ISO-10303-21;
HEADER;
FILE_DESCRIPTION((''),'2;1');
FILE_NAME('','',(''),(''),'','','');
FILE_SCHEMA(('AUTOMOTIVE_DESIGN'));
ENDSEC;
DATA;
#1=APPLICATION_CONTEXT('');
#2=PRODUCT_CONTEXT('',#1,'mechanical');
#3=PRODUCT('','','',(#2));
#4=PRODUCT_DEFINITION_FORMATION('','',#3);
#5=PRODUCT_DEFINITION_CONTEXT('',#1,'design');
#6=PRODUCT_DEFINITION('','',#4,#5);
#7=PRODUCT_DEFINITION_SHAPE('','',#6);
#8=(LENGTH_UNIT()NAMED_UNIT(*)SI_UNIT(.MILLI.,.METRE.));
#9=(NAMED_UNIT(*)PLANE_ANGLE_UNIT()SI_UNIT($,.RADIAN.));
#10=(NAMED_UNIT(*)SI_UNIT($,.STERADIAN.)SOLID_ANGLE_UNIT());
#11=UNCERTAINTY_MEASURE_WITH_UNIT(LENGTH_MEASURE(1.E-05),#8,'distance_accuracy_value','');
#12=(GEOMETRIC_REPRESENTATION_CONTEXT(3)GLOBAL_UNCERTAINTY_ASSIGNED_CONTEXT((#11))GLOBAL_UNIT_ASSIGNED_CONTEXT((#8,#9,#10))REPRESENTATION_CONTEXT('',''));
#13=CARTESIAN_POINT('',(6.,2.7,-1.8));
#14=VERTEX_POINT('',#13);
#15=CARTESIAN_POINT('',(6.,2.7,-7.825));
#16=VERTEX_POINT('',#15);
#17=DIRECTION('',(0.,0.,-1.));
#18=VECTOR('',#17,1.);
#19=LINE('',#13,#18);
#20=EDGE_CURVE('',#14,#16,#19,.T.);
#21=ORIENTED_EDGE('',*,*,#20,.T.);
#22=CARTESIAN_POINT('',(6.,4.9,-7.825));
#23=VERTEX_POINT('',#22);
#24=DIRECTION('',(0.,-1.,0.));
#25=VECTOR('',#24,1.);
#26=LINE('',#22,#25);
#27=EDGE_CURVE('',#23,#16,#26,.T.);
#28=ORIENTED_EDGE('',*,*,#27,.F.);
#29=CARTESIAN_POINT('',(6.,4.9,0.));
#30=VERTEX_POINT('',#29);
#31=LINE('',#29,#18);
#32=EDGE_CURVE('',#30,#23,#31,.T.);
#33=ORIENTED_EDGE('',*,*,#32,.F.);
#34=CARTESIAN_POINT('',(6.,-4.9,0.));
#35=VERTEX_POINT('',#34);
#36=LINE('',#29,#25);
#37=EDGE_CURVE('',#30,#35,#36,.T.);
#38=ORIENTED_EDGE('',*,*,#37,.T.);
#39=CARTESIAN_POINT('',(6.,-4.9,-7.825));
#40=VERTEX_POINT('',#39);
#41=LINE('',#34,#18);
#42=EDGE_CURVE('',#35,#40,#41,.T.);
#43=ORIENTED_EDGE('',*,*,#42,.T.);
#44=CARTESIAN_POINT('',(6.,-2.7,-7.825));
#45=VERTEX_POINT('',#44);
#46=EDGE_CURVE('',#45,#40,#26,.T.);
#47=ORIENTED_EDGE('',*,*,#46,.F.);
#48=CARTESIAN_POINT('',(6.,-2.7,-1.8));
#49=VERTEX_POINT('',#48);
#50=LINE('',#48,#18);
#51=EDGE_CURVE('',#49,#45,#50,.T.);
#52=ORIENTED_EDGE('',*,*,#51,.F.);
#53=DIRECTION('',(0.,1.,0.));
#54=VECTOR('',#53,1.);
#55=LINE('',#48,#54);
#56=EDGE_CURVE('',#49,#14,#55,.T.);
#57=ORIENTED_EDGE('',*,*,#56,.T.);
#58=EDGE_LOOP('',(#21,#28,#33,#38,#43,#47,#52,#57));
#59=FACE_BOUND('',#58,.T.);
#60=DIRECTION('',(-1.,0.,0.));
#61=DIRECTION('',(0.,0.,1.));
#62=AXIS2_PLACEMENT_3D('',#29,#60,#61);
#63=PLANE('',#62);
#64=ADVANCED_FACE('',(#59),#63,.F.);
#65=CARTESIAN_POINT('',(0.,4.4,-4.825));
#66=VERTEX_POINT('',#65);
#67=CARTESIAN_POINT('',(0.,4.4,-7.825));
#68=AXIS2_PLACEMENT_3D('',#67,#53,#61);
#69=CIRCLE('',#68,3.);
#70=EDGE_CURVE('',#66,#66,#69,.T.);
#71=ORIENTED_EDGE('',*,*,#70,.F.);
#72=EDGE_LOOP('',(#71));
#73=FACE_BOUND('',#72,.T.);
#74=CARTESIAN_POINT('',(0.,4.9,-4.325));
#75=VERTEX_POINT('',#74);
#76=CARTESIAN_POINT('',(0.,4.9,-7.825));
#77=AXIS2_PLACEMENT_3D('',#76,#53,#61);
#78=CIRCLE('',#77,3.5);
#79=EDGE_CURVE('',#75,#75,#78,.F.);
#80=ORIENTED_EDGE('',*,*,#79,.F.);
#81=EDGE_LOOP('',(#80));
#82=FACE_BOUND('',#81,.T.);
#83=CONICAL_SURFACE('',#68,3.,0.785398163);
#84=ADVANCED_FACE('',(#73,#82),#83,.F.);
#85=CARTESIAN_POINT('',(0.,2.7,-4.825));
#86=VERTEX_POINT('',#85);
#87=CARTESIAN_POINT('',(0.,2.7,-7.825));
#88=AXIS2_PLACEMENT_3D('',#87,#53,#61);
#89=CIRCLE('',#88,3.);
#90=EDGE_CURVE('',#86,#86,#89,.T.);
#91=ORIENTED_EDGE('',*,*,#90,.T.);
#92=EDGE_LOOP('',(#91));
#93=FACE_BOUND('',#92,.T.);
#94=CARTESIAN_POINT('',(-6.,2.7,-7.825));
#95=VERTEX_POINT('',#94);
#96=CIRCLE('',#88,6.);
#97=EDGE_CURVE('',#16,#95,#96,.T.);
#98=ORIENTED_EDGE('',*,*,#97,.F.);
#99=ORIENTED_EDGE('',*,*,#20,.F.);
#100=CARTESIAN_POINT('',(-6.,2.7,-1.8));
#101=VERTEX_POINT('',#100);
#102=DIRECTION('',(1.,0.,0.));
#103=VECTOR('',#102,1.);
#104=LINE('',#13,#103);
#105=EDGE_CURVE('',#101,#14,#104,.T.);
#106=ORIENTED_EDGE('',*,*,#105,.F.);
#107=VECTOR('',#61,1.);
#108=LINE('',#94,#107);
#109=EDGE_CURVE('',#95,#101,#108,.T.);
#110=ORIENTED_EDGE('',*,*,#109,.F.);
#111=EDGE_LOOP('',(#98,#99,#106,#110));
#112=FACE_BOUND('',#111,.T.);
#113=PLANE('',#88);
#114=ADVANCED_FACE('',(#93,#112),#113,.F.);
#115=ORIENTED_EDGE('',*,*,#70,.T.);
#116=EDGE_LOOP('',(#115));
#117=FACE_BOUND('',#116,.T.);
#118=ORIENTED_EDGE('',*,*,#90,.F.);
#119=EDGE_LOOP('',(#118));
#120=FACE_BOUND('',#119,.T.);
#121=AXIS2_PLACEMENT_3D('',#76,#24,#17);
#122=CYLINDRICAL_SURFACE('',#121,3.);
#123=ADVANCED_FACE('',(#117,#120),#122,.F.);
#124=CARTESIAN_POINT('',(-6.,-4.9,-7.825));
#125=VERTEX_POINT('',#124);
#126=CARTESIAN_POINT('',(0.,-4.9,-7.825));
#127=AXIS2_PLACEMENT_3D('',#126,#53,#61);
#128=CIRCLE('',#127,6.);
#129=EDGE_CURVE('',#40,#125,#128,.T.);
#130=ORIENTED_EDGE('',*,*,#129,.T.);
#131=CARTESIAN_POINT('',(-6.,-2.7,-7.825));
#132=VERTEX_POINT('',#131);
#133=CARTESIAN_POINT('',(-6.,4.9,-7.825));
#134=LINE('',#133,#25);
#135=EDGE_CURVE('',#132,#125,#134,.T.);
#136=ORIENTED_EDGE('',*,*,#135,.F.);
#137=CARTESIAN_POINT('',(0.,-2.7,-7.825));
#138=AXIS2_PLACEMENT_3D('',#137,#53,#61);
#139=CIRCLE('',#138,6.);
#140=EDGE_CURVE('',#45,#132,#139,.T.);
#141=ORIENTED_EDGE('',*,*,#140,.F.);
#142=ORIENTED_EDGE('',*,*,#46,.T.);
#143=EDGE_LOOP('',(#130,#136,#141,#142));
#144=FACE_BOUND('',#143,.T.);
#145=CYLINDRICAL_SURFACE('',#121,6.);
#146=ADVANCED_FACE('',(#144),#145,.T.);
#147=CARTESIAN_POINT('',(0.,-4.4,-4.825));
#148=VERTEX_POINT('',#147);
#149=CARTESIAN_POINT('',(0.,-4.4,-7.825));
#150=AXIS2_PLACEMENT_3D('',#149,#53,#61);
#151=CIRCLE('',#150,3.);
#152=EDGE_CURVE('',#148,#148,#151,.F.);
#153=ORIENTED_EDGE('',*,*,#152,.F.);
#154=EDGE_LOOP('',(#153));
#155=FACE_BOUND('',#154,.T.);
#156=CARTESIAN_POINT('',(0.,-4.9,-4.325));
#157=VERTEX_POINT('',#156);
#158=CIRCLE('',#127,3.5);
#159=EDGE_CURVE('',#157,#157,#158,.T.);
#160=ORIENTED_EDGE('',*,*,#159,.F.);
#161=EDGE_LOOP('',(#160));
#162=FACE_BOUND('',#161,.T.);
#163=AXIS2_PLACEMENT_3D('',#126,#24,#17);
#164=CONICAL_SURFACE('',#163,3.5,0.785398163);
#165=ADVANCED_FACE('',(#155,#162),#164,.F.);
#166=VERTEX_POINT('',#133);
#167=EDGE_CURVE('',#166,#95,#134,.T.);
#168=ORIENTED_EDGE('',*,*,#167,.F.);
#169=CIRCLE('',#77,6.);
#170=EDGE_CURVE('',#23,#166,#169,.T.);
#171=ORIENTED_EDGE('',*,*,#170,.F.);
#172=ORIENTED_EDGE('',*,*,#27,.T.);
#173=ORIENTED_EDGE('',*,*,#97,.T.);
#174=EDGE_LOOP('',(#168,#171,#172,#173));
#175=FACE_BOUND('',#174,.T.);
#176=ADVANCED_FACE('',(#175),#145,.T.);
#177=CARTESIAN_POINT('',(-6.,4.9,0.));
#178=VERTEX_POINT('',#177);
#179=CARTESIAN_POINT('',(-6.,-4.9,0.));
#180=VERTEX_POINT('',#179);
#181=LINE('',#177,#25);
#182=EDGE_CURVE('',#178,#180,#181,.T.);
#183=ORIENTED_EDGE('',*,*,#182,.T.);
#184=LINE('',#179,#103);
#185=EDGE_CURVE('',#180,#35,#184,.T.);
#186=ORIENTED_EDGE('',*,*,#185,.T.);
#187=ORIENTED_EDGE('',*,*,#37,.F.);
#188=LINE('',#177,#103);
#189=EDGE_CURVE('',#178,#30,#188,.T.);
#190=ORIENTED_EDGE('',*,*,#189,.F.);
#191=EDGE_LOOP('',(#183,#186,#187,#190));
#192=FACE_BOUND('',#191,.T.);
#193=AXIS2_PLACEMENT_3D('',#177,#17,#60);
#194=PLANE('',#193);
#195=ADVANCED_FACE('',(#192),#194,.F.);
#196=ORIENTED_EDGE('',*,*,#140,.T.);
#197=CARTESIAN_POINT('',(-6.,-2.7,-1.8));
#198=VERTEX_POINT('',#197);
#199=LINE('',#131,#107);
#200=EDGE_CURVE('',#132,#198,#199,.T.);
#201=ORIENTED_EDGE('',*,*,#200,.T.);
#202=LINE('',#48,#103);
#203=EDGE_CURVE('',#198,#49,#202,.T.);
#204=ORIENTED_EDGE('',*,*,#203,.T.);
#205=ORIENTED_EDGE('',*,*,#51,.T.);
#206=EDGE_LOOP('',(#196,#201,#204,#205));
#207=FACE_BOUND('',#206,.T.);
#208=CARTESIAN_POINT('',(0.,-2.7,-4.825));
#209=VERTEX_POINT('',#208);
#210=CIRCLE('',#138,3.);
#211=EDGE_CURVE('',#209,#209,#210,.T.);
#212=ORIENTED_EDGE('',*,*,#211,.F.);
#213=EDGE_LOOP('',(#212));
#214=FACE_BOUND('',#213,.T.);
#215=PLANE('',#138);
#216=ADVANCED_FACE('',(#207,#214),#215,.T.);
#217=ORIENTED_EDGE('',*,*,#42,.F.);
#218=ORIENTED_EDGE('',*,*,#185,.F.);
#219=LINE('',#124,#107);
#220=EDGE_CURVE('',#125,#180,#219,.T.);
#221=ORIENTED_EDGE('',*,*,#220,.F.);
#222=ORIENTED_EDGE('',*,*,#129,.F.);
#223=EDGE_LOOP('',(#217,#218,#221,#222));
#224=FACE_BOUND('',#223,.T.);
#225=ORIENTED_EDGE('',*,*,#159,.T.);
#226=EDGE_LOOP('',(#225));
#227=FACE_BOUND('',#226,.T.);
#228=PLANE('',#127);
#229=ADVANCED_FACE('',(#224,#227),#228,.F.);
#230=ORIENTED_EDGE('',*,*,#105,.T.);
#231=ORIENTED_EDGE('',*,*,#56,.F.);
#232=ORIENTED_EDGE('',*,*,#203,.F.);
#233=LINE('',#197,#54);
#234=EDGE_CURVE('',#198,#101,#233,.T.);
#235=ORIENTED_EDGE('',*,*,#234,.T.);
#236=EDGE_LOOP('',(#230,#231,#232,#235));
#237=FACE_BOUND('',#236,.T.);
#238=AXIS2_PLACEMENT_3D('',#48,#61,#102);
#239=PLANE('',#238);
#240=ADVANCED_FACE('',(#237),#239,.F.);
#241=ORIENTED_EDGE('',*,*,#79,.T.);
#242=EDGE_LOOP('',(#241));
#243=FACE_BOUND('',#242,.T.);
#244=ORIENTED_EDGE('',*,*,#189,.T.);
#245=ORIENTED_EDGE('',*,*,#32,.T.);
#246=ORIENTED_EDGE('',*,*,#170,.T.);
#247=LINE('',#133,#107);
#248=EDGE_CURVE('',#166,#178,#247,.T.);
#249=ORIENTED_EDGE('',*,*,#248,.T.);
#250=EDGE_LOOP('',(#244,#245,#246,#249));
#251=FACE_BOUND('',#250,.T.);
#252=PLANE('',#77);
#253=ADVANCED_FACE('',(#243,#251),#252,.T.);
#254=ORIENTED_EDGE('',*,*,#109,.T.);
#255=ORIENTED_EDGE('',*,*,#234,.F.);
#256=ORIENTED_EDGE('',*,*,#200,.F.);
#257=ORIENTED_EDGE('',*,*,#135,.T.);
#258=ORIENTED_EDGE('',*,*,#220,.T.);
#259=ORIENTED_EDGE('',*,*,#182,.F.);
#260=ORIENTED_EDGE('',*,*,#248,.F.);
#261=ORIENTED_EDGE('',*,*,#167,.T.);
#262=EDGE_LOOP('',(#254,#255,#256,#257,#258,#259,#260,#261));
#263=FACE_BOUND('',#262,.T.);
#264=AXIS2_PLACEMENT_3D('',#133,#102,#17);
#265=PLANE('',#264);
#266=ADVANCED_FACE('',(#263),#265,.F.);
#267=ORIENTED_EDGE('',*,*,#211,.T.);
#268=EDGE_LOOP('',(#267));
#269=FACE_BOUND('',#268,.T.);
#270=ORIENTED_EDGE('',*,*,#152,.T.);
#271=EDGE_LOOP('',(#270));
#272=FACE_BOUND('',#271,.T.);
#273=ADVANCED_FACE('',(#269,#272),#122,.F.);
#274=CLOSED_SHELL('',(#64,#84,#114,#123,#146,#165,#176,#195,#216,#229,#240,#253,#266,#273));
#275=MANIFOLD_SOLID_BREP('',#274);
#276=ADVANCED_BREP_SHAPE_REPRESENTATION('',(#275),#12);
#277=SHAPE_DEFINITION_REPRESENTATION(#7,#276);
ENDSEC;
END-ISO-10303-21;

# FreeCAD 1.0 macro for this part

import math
import FreeCAD as App
import Part
import Sketcher
Q = App.Units.Quantity


def edges_at(feature, points):
    """Names of the edges that pass closest to the given points."""
    edges = feature.Shape.Edges
    near = lambda p: min(range(len(edges)), key=lambda i: edges[i].distToShape(Part.Vertex(*p))[0])
    return sorted({f"Edge{near(p) + 1}" for p in points})

doc = App.newDocument("Part")
body = doc.addObject("PartDesign::Body", "Body")

sketch1 = body.newObject("Sketcher::SketchObject", "Sketch")
sketch1.AttachmentSupport = (doc.getObject("XZ_Plane"), [""])
sketch1.MapMode = "FlatFace"
sketch1.addGeometry([
    Part.LineSegment(App.Vector(-6, -7.8, 0), App.Vector(-6, 0, 0)),
    Part.LineSegment(App.Vector(-6, 0, 0), App.Vector(6, 0, 0)),
    Part.LineSegment(App.Vector(6, 0, 0), App.Vector(6, -7.8, 0)),
    Part.ArcOfCircle(Part.Circle(App.Vector(0, -7.8, 0), App.Vector(0, 0, 1), 6), math.radians(180), math.radians(360)),
    Part.Circle(App.Vector(0, -7.8, 0), App.Vector(0, 0, 1), 3),
], False)
sketch1.addConstraint([
    Sketcher.Constraint("Coincident", 0, 2, 1, 1),
    Sketcher.Constraint("Coincident", 1, 2, 2, 1),
    Sketcher.Constraint("Tangent", 2, 2, 3, 2),
    Sketcher.Constraint("Tangent", 3, 1, 0, 1),
    Sketcher.Constraint("Vertical", 0),
    Sketcher.Constraint("Horizontal", 1),
    Sketcher.Constraint("Vertical", 2),
    Sketcher.Constraint("Coincident", 4, 3, 3, 3),
    Sketcher.Constraint("Symmetric", 0, 2, 1, 2, -1, 1),
    Sketcher.Constraint("Diameter", 4, Q("6 mm")),
    Sketcher.Constraint("Radius", 3, Q("6 mm")),
    Sketcher.Constraint("DistanceY", 0, 1, 0, 2, Q("7.825 mm")),
])
pad1 = body.newObject("PartDesign::Pad", "Pad")
pad1.Profile = sketch1
pad1.Length = 9.8
pad1.Midplane = True

sketch2 = body.newObject("Sketcher::SketchObject", "Sketch001")
sketch2.AttachmentSupport = (doc.getObject("XZ_Plane"), [""])
sketch2.MapMode = "FlatFace"
sketch2.addGeometry([
    Part.LineSegment(App.Vector(-6, -2, 0), App.Vector(6, -2, 0)),
    Part.LineSegment(App.Vector(6, -2, 0), App.Vector(6, -8, 0)),
    Part.ArcOfCircle(Part.Circle(App.Vector(0, -8, 0), App.Vector(0, 0, 1), 6), math.radians(180), math.radians(360)),
    Part.LineSegment(App.Vector(-6, -8, 0), App.Vector(-6, -2, 0)),
], False)
sketch2.addConstraint([
    Sketcher.Constraint("Coincident", 0, 2, 1, 1),
    Sketcher.Constraint("Tangent", 1, 2, 2, 2),
    Sketcher.Constraint("Tangent", 2, 1, 3, 1),
    Sketcher.Constraint("Coincident", 3, 2, 0, 1),
    Sketcher.Constraint("Horizontal", 0),
    Sketcher.Constraint("Vertical", 1),
    Sketcher.Constraint("Vertical", 3),
    Sketcher.Constraint("PointOnObject", 2, 3, -2),
    Sketcher.Constraint("Radius", 2, Q("6 mm")),
    Sketcher.Constraint("DistanceY", 0, 2, -1, 1, Q("1.8 mm")),
    Sketcher.Constraint("DistanceY", 1, 2, 1, 1, Q("6.025 mm")),
])
pocket1 = body.newObject("PartDesign::Pocket", "Pocket")
pocket1.Profile = sketch2
pocket1.Length = 5.4
pocket1.Midplane = True
doc.recompute()

chamfer = body.newObject("PartDesign::Chamfer", "Chamfer")
chamfer.Base = (pocket1, edges_at(pocket1, [(0, -4.9, -10.825), (0, 4.9, -10.825)]))
chamfer.Size = 0.5

doc.recompute()
